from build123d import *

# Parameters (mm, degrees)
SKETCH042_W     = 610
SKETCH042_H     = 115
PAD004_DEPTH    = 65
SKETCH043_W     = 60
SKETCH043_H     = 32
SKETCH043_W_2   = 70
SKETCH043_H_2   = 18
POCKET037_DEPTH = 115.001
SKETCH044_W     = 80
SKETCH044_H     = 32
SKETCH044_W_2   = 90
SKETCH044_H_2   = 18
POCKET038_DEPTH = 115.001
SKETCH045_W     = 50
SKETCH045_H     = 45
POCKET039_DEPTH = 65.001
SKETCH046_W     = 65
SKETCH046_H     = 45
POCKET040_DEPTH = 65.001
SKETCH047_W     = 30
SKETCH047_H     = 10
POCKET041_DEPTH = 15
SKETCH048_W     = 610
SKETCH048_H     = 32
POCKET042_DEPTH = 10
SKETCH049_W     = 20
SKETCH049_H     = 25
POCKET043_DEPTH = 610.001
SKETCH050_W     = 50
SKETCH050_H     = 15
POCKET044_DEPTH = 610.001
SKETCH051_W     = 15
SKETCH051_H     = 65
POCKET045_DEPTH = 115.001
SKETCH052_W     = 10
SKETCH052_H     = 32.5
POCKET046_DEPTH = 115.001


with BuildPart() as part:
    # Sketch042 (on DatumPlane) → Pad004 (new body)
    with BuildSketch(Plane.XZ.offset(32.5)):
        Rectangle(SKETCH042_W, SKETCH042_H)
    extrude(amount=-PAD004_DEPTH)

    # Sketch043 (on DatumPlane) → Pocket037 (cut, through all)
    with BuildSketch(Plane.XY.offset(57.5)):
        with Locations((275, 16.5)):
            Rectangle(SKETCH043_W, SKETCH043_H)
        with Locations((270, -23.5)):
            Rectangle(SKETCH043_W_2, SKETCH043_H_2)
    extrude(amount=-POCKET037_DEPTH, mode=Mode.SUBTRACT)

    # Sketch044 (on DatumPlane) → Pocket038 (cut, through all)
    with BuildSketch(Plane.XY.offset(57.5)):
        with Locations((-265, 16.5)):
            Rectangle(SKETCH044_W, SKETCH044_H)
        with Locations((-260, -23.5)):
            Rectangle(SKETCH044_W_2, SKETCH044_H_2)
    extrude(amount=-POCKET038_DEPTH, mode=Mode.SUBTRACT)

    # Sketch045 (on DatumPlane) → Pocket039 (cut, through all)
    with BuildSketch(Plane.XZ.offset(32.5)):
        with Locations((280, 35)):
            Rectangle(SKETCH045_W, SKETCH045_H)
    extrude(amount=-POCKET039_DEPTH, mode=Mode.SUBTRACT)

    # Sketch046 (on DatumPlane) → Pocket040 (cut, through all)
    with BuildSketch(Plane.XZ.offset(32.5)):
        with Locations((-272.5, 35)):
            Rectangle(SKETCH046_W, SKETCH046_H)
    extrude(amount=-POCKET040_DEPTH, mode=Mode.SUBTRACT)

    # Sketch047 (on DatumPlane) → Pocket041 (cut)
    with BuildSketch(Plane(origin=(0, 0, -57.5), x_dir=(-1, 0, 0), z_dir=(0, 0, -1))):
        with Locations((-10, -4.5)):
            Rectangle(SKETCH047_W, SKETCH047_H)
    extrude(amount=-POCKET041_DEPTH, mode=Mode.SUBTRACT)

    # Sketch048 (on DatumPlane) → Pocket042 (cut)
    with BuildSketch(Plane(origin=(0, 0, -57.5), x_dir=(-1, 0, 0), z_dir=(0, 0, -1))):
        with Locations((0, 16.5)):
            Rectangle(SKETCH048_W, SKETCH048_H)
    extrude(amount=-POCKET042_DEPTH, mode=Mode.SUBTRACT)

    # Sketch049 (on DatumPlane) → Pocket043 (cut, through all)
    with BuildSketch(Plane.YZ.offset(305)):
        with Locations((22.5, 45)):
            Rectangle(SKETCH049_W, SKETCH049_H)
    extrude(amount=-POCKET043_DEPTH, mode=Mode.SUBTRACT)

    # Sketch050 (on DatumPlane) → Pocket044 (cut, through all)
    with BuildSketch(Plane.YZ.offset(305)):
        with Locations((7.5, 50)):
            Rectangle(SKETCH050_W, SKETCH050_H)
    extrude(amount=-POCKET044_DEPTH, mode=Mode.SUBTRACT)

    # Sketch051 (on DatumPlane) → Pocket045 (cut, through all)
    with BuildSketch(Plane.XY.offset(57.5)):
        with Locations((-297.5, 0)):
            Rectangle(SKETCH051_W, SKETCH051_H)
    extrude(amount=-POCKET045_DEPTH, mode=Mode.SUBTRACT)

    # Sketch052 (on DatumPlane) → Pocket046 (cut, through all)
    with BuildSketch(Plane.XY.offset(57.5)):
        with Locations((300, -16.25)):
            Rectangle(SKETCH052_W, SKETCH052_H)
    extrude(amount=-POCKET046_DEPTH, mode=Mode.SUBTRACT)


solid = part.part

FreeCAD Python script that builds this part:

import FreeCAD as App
import Part
import Sketcher

V = App.Vector

doc = App.newDocument("Part")
body = doc.addObject("PartDesign::Body", "Body")

sketch1 = body.newObject("Sketcher::SketchObject", "Sketch")
sketch1.AttachmentSupport = (doc.getObject("XZ_Plane"), [""])
sketch1.MapMode = "FlatFace"
sketch1.AttachmentOffset = App.Placement(V(0, 0, 32.5), App.Rotation())
sketch1.addGeometry([
    Part.LineSegment(V(-305, 57.5, 0), V(-305, -57.5, 0)),
    Part.LineSegment(V(-305, -57.5, 0), V(305, -57.5, 0)),
    Part.LineSegment(V(305, -57.5, 0), V(305, 57.5, 0)),
    Part.LineSegment(V(305, 57.5, 0), V(-305, 57.5, 0)),
], False)
sketch1.addConstraint([
    Sketcher.Constraint("Coincident", 0, 2, 1, 1),
    Sketcher.Constraint("Coincident", 1, 2, 2, 1),
    Sketcher.Constraint("Coincident", 2, 2, 3, 1),
    Sketcher.Constraint("Coincident", 3, 2, 0, 1),
    Sketcher.Constraint("Vertical", 0),
    Sketcher.Constraint("Horizontal", 1),
    Sketcher.Constraint("Vertical", 2),
    Sketcher.Constraint("Horizontal", 3),
    Sketcher.Constraint("Symmetric", 0, 2, 2, 2, -1, 1),
    Sketcher.Constraint("DistanceX", 1, 1, 1, 2, 610.0),
    Sketcher.Constraint("DistanceY", 0, 2, 0, 1, 115.0),
])
pad1 = body.newObject("PartDesign::Pad", "Pad")
pad1.Profile = sketch1
pad1.Length = 65
pad1.Reversed = True

sketch2 = body.newObject("Sketcher::SketchObject", "Sketch001")
sketch2.AttachmentSupport = (doc.getObject("XY_Plane"), [""])
sketch2.MapMode = "FlatFace"
sketch2.AttachmentOffset = App.Placement(V(0, 0, 57.5), App.Rotation())
sketch2.addGeometry([
    Part.LineSegment(V(245, 32.5, 0), V(245, 0.5, 0)),
    Part.LineSegment(V(245, 0.5, 0), V(305, 0.5, 0)),
    Part.LineSegment(V(305, 0.5, 0), V(305, 32.5, 0)),
    Part.LineSegment(V(305, 32.5, 0), V(245, 32.5, 0)),
    Part.LineSegment(V(235, -14.5, 0), V(235, -32.5, 0)),
    Part.LineSegment(V(235, -32.5, 0), V(305, -32.5, 0)),
    Part.LineSegment(V(305, -32.5, 0), V(305, -14.5, 0)),
    Part.LineSegment(V(305, -14.5, 0), V(235, -14.5, 0)),
], False)
sketch2.addConstraint([
    Sketcher.Constraint("Coincident", 0, 2, 1, 1),
    Sketcher.Constraint("Coincident", 1, 2, 2, 1),
    Sketcher.Constraint("Coincident", 2, 2, 3, 1),
    Sketcher.Constraint("Coincident", 3, 2, 0, 1),
    Sketcher.Constraint("Coincident", 4, 2, 5, 1),
    Sketcher.Constraint("Coincident", 5, 2, 6, 1),
    Sketcher.Constraint("Coincident", 6, 2, 7, 1),
    Sketcher.Constraint("Coincident", 7, 2, 4, 1),
    Sketcher.Constraint("Vertical", 0),
    Sketcher.Constraint("Horizontal", 1),
    Sketcher.Constraint("Vertical", 2),
    Sketcher.Constraint("Horizontal", 3),
    Sketcher.Constraint("Vertical", 4),
    Sketcher.Constraint("Horizontal", 5),
    Sketcher.Constraint("Vertical", 6),
    Sketcher.Constraint("Horizontal", 7),
    Sketcher.Constraint("Symmetric", 2, 2, 5, 2, -1),
    Sketcher.Constraint("DistanceX", 1, 1, 1, 2, 60.0),
    Sketcher.Constraint("DistanceX", 5, 1, 5, 2, 70.0),
    Sketcher.Constraint("DistanceY", 0, 2, 0, 1, 32.0),
    Sketcher.Constraint("DistanceY", 4, 2, 4, 1, 18.0),
    Sketcher.Constraint("DistanceX", -1, 1, 0, 2, 245.0),
    Sketcher.Constraint("DistanceY", 4, 2, 0, 2, 33.0),
])
pocket1 = body.newObject("PartDesign::Pocket", "Pocket")
pocket1.Profile = sketch2
pocket1.Type = "ThroughAll"

sketch3 = body.newObject("Sketcher::SketchObject", "Sketch002")
sketch3.AttachmentSupport = (doc.getObject("XY_Plane"), [""])
sketch3.MapMode = "FlatFace"
sketch3.AttachmentOffset = App.Placement(V(0, 0, 57.5), App.Rotation())
sketch3.addGeometry([
    Part.LineSegment(V(-305, 32.5, 0), V(-305, 0.5, 0)),
    Part.LineSegment(V(-305, 0.5, 0), V(-225, 0.5, 0)),
    Part.LineSegment(V(-225, 0.5, 0), V(-225, 32.5, 0)),
    Part.LineSegment(V(-225, 32.5, 0), V(-305, 32.5, 0)),
    Part.LineSegment(V(-305, -14.5, 0), V(-305, -32.5, 0)),
    Part.LineSegment(V(-305, -32.5, 0), V(-215, -32.5, 0)),
    Part.LineSegment(V(-215, -32.5, 0), V(-215, -14.5, 0)),
    Part.LineSegment(V(-215, -14.5, 0), V(-305, -14.5, 0)),
], False)
sketch3.addConstraint([
    Sketcher.Constraint("Coincident", 0, 2, 1, 1),
    Sketcher.Constraint("Coincident", 1, 2, 2, 1),
    Sketcher.Constraint("Coincident", 2, 2, 3, 1),
    Sketcher.Constraint("Coincident", 3, 2, 0, 1),
    Sketcher.Constraint("Coincident", 4, 2, 5, 1),
    Sketcher.Constraint("Coincident", 5, 2, 6, 1),
    Sketcher.Constraint("Coincident", 6, 2, 7, 1),
    Sketcher.Constraint("Coincident", 7, 2, 4, 1),
    Sketcher.Constraint("Vertical", 0),
    Sketcher.Constraint("Horizontal", 1),
    Sketcher.Constraint("Vertical", 2),
    Sketcher.Constraint("Horizontal", 3),
    Sketcher.Constraint("Vertical", 4),
    Sketcher.Constraint("Horizontal", 5),
    Sketcher.Constraint("Vertical", 6),
    Sketcher.Constraint("Horizontal", 7),
    Sketcher.Constraint("Symmetric", 3, 2, 4, 2, -1),
    Sketcher.Constraint("DistanceX", 1, 1, 1, 2, 80.0),
    Sketcher.Constraint("DistanceX", 5, 1, 5, 2, 90.0),
    Sketcher.Constraint("DistanceY", 0, 2, 0, 1, 32.0),
    Sketcher.Constraint("DistanceY", 4, 2, 4, 1, 18.0),
    Sketcher.Constraint("DistanceX", 0, 2, -1, 1, 305.0),
    Sketcher.Constraint("DistanceY", 4, 2, 0, 2, 33.0),
])
pocket2 = body.newObject("PartDesign::Pocket", "Pocket001")
pocket2.Profile = sketch3
pocket2.Type = "ThroughAll"

sketch4 = body.newObject("Sketcher::SketchObject", "Sketch003")
sketch4.AttachmentSupport = (doc.getObject("XZ_Plane"), [""])
sketch4.MapMode = "FlatFace"
sketch4.AttachmentOffset = App.Placement(V(0, 0, 32.5), App.Rotation())
sketch4.addGeometry([
    Part.LineSegment(V(255, 57.5, 0), V(255, 12.5, 0)),
    Part.LineSegment(V(255, 12.5, 0), V(305, 12.5, 0)),
    Part.LineSegment(V(305, 12.5, 0), V(305, 57.5, 0)),
    Part.LineSegment(V(305, 57.5, 0), V(255, 57.5, 0)),
], False)
sketch4.addConstraint([
    Sketcher.Constraint("Coincident", 0, 2, 1, 1),
    Sketcher.Constraint("Coincident", 1, 2, 2, 1),
    Sketcher.Constraint("Coincident", 2, 2, 3, 1),
    Sketcher.Constraint("Coincident", 3, 2, 0, 1),
    Sketcher.Constraint("Vertical", 0),
    Sketcher.Constraint("Horizontal", 1),
    Sketcher.Constraint("Vertical", 2),
    Sketcher.Constraint("Horizontal", 3),
    Sketcher.Constraint("DistanceX", 1, 1, 1, 2, 50.0),
    Sketcher.Constraint("DistanceY", 0, 2, 0, 1, 45.0),
    Sketcher.Constraint("DistanceX", -1, 1, 0, 2, 255.0),
    Sketcher.Constraint("DistanceY", -1, 1, 0, 2, 12.5),
])
pocket3 = body.newObject("PartDesign::Pocket", "Pocket002")
pocket3.Profile = sketch4
pocket3.Type = "ThroughAll"

sketch5 = body.newObject("Sketcher::SketchObject", "Sketch004")
sketch5.AttachmentSupport = (doc.getObject("XZ_Plane"), [""])
sketch5.MapMode = "FlatFace"
sketch5.AttachmentOffset = App.Placement(V(0, 0, 32.5), App.Rotation())
sketch5.addGeometry([
    Part.LineSegment(V(-305, 57.5, 0), V(-305, 12.5, 0)),
    Part.LineSegment(V(-305, 12.5, 0), V(-240, 12.5, 0)),
    Part.LineSegment(V(-240, 12.5, 0), V(-240, 57.5, 0)),
    Part.LineSegment(V(-240, 57.5, 0), V(-305, 57.5, 0)),
], False)
sketch5.addConstraint([
    Sketcher.Constraint("Coincident", 0, 2, 1, 1),
    Sketcher.Constraint("Coincident", 1, 2, 2, 1),
    Sketcher.Constraint("Coincident", 2, 2, 3, 1),
    Sketcher.Constraint("Coincident", 3, 2, 0, 1),
    Sketcher.Constraint("Vertical", 0),
    Sketcher.Constraint("Horizontal", 1),
    Sketcher.Constraint("Vertical", 2),
    Sketcher.Constraint("Horizontal", 3),
    Sketcher.Constraint("DistanceX", 1, 1, 1, 2, 65.0),
    Sketcher.Constraint("DistanceY", 0, 2, 0, 1, 45.0),
    Sketcher.Constraint("DistanceX", 0, 2, -1, 1, 305.0),
    Sketcher.Constraint("DistanceY", -1, 1, 0, 2, 12.5),
])
pocket4 = body.newObject("PartDesign::Pocket", "Pocket003")
pocket4.Profile = sketch5
pocket4.Type = "ThroughAll"

sketch6 = body.newObject("Sketcher::SketchObject", "Sketch005")
sketch6.AttachmentSupport = (doc.getObject("XY_Plane"), [""])
sketch6.MapMode = "FlatFace"
sketch6.AttachmentOffset = App.Placement(V(0, 0, -57.5), App.Rotation())
sketch6.addGeometry([
    Part.LineSegment(V(25, 0.5, 0), V(25, -9.5, 0)),
    Part.LineSegment(V(25, -9.5, 0), V(-5, -9.5, 0)),
    Part.LineSegment(V(-5, -9.5, 0), V(-5, 0.5, 0)),
    Part.LineSegment(V(-5, 0.5, 0), V(25, 0.5, 0)),
], False)
sketch6.addConstraint([
    Sketcher.Constraint("Coincident", 0, 2, 1, 1),
    Sketcher.Constraint("Coincident", 1, 2, 2, 1),
    Sketcher.Constraint("Coincident", 2, 2, 3, 1),
    Sketcher.Constraint("Coincident", 3, 2, 0, 1),
    Sketcher.Constraint("Vertical", 0),
    Sketcher.Constraint("Horizontal", 1),
    Sketcher.Constraint("Vertical", 2),
    Sketcher.Constraint("Horizontal", 3),
    Sketcher.Constraint("DistanceX", 1, 2, 1, 1, 30.0),
    Sketcher.Constraint("DistanceY", 0, 2, 0, 1, 10.0),
    Sketcher.Constraint("DistanceX", -1, 1, 0, 2, 25.0),
    Sketcher.Constraint("DistanceY", 0, 2, -1, 1, 9.5),
])
pocket5 = body.newObject("PartDesign::Pocket", "Pocket004")
pocket5.Profile = sketch6
pocket5.Length = 15
pocket5.Reversed = True

sketch7 = body.newObject("Sketcher::SketchObject", "Sketch006")
sketch7.AttachmentSupport = (doc.getObject("XY_Plane"), [""])
sketch7.MapMode = "FlatFace"
sketch7.AttachmentOffset = App.Placement(V(0, 0, -57.5), App.Rotation())
sketch7.addGeometry([
    Part.LineSegment(V(305, 32.5, 0), V(305, 0.5, 0)),
    Part.LineSegment(V(305, 0.5, 0), V(-305, 0.5, 0)),
    Part.LineSegment(V(-305, 0.5, 0), V(-305, 32.5, 0)),
    Part.LineSegment(V(-305, 32.5, 0), V(305, 32.5, 0)),
], False)
sketch7.addConstraint([
    Sketcher.Constraint("Coincident", 0, 2, 1, 1),
    Sketcher.Constraint("Coincident", 1, 2, 2, 1),
    Sketcher.Constraint("Coincident", 2, 2, 3, 1),
    Sketcher.Constraint("Coincident", 3, 2, 0, 1),
    Sketcher.Constraint("Vertical", 0),
    Sketcher.Constraint("Horizontal", 1),
    Sketcher.Constraint("Vertical", 2),
    Sketcher.Constraint("Horizontal", 3),
    Sketcher.Constraint("DistanceX", 1, 2, 1, 1, 610.0),
    Sketcher.Constraint("DistanceY", 0, 2, 0, 1, 32.0),
    Sketcher.Constraint("DistanceX", -1, 1, 0, 2, 305.0),
    Sketcher.Constraint("DistanceY", -1, 1, 0, 2, 0.5),
])
pocket6 = body.newObject("PartDesign::Pocket", "Pocket005")
pocket6.Profile = sketch7
pocket6.Length = 10
pocket6.Reversed = True

sketch8 = body.newObject("Sketcher::SketchObject", "Sketch007")
sketch8.AttachmentSupport = (doc.getObject("YZ_Plane"), [""])
sketch8.MapMode = "FlatFace"
sketch8.AttachmentOffset = App.Placement(V(0, 0, 305), App.Rotation())
sketch8.addGeometry([
    Part.LineSegment(V(12.5, 57.5, 0), V(12.5, 32.5, 0)),
    Part.LineSegment(V(12.5, 32.5, 0), V(32.5, 32.5, 0)),
    Part.LineSegment(V(32.5, 32.5, 0), V(32.5, 57.5, 0)),
    Part.LineSegment(V(32.5, 57.5, 0), V(12.5, 57.5, 0)),
], False)
sketch8.addConstraint([
    Sketcher.Constraint("Coincident", 0, 2, 1, 1),
    Sketcher.Constraint("Coincident", 1, 2, 2, 1),
    Sketcher.Constraint("Coincident", 2, 2, 3, 1),
    Sketcher.Constraint("Coincident", 3, 2, 0, 1),
    Sketcher.Constraint("Vertical", 0),
    Sketcher.Constraint("Horizontal", 1),
    Sketcher.Constraint("Vertical", 2),
    Sketcher.Constraint("Horizontal", 3),
    Sketcher.Constraint("DistanceX", 1, 1, 1, 2, 20.0),
    Sketcher.Constraint("DistanceY", 0, 2, 0, 1, 25.0),
    Sketcher.Constraint("DistanceX", -1, 1, 0, 2, 12.5),
    Sketcher.Constraint("DistanceY", -1, 1, 0, 2, 32.5),
])
pocket7 = body.newObject("PartDesign::Pocket", "Pocket006")
pocket7.Profile = sketch8
pocket7.Type = "ThroughAll"

sketch9 = body.newObject("Sketcher::SketchObject", "Sketch008")
sketch9.AttachmentSupport = (doc.getObject("YZ_Plane"), [""])
sketch9.MapMode = "FlatFace"
sketch9.AttachmentOffset = App.Placement(V(0, 0, 305), App.Rotation())
sketch9.addGeometry([
    Part.LineSegment(V(-17.5, 57.5, 0), V(-17.5, 42.5, 0)),
    Part.LineSegment(V(-17.5, 42.5, 0), V(32.5, 42.5, 0)),
    Part.LineSegment(V(32.5, 42.5, 0), V(32.5, 57.5, 0)),
    Part.LineSegment(V(32.5, 57.5, 0), V(-17.5, 57.5, 0)),
], False)
sketch9.addConstraint([
    Sketcher.Constraint("Coincident", 0, 2, 1, 1),
    Sketcher.Constraint("Coincident", 1, 2, 2, 1),
    Sketcher.Constraint("Coincident", 2, 2, 3, 1),
    Sketcher.Constraint("Coincident", 3, 2, 0, 1),
    Sketcher.Constraint("Vertical", 0),
    Sketcher.Constraint("Horizontal", 1),
    Sketcher.Constraint("Vertical", 2),
    Sketcher.Constraint("Horizontal", 3),
    Sketcher.Constraint("DistanceX", 1, 1, 1, 2, 50.0),
    Sketcher.Constraint("DistanceY", 0, 2, 0, 1, 15.0),
    Sketcher.Constraint("DistanceX", 0, 2, -1, 1, 17.5),
    Sketcher.Constraint("DistanceY", -1, 1, 0, 2, 42.5),
])
pocket8 = body.newObject("PartDesign::Pocket", "Pocket007")
pocket8.Profile = sketch9
pocket8.Type = "ThroughAll"

sketch10 = body.newObject("Sketcher::SketchObject", "Sketch009")
sketch10.AttachmentSupport = (doc.getObject("XY_Plane"), [""])
sketch10.MapMode = "FlatFace"
sketch10.AttachmentOffset = App.Placement(V(0, 0, 57.5), App.Rotation())
sketch10.addGeometry([
    Part.LineSegment(V(-305, 32.5, 0), V(-305, -32.5, 0)),
    Part.LineSegment(V(-305, -32.5, 0), V(-290, -32.5, 0)),
    Part.LineSegment(V(-290, -32.5, 0), V(-290, 32.5, 0)),
    Part.LineSegment(V(-290, 32.5, 0), V(-305, 32.5, 0)),
], False)
sketch10.addConstraint([
    Sketcher.Constraint("Coincident", 0, 2, 1, 1),
    Sketcher.Constraint("Coincident", 1, 2, 2, 1),
    Sketcher.Constraint("Coincident", 2, 2, 3, 1),
    Sketcher.Constraint("Coincident", 3, 2, 0, 1),
    Sketcher.Constraint("Vertical", 0),
    Sketcher.Constraint("Horizontal", 1),
    Sketcher.Constraint("Vertical", 2),
    Sketcher.Constraint("Horizontal", 3),
    Sketcher.Constraint("DistanceX", 1, 1, 1, 2, 15.0),
    Sketcher.Constraint("DistanceY", 0, 2, 0, 1, 65.0),
    Sketcher.Constraint("DistanceX", 0, 2, -1, 1, 305.0),
    Sketcher.Constraint("DistanceY", 0, 2, -1, 1, 32.5),
])
pocket9 = body.newObject("PartDesign::Pocket", "Pocket008")
pocket9.Profile = sketch10
pocket9.Type = "ThroughAll"

sketch11 = body.newObject("Sketcher::SketchObject", "Sketch010")
sketch11.AttachmentSupport = (doc.getObject("XY_Plane"), [""])
sketch11.MapMode = "FlatFace"
sketch11.AttachmentOffset = App.Placement(V(0, 0, 57.5), App.Rotation())
sketch11.addGeometry([
    Part.LineSegment(V(295, 0, 0), V(295, -32.5, 0)),
    Part.LineSegment(V(295, -32.5, 0), V(305, -32.5, 0)),
    Part.LineSegment(V(305, -32.5, 0), V(305, 0, 0)),
    Part.LineSegment(V(305, 0, 0), V(295, 0, 0)),
], False)
sketch11.addConstraint([
    Sketcher.Constraint("Coincident", 0, 2, 1, 1),
    Sketcher.Constraint("Coincident", 1, 2, 2, 1),
    Sketcher.Constraint("Coincident", 2, 2, 3, 1),
    Sketcher.Constraint("Coincident", 3, 2, 0, 1),
    Sketcher.Constraint("Vertical", 0),
    Sketcher.Constraint("Horizontal", 1),
    Sketcher.Constraint("Vertical", 2),
    Sketcher.Constraint("Horizontal", 3),
    Sketcher.Constraint("PointOnObject", 2, 2, -1),
    Sketcher.Constraint("DistanceX", 1, 1, 1, 2, 10.0),
    Sketcher.Constraint("DistanceY", 0, 2, 0, 1, 32.5),
    Sketcher.Constraint("DistanceX", -1, 1, 0, 2, 295.0),
])
pocket10 = body.newObject("PartDesign::Pocket", "Pocket009")
pocket10.Profile = sketch11
pocket10.Type = "ThroughAll"

doc.recompute()
